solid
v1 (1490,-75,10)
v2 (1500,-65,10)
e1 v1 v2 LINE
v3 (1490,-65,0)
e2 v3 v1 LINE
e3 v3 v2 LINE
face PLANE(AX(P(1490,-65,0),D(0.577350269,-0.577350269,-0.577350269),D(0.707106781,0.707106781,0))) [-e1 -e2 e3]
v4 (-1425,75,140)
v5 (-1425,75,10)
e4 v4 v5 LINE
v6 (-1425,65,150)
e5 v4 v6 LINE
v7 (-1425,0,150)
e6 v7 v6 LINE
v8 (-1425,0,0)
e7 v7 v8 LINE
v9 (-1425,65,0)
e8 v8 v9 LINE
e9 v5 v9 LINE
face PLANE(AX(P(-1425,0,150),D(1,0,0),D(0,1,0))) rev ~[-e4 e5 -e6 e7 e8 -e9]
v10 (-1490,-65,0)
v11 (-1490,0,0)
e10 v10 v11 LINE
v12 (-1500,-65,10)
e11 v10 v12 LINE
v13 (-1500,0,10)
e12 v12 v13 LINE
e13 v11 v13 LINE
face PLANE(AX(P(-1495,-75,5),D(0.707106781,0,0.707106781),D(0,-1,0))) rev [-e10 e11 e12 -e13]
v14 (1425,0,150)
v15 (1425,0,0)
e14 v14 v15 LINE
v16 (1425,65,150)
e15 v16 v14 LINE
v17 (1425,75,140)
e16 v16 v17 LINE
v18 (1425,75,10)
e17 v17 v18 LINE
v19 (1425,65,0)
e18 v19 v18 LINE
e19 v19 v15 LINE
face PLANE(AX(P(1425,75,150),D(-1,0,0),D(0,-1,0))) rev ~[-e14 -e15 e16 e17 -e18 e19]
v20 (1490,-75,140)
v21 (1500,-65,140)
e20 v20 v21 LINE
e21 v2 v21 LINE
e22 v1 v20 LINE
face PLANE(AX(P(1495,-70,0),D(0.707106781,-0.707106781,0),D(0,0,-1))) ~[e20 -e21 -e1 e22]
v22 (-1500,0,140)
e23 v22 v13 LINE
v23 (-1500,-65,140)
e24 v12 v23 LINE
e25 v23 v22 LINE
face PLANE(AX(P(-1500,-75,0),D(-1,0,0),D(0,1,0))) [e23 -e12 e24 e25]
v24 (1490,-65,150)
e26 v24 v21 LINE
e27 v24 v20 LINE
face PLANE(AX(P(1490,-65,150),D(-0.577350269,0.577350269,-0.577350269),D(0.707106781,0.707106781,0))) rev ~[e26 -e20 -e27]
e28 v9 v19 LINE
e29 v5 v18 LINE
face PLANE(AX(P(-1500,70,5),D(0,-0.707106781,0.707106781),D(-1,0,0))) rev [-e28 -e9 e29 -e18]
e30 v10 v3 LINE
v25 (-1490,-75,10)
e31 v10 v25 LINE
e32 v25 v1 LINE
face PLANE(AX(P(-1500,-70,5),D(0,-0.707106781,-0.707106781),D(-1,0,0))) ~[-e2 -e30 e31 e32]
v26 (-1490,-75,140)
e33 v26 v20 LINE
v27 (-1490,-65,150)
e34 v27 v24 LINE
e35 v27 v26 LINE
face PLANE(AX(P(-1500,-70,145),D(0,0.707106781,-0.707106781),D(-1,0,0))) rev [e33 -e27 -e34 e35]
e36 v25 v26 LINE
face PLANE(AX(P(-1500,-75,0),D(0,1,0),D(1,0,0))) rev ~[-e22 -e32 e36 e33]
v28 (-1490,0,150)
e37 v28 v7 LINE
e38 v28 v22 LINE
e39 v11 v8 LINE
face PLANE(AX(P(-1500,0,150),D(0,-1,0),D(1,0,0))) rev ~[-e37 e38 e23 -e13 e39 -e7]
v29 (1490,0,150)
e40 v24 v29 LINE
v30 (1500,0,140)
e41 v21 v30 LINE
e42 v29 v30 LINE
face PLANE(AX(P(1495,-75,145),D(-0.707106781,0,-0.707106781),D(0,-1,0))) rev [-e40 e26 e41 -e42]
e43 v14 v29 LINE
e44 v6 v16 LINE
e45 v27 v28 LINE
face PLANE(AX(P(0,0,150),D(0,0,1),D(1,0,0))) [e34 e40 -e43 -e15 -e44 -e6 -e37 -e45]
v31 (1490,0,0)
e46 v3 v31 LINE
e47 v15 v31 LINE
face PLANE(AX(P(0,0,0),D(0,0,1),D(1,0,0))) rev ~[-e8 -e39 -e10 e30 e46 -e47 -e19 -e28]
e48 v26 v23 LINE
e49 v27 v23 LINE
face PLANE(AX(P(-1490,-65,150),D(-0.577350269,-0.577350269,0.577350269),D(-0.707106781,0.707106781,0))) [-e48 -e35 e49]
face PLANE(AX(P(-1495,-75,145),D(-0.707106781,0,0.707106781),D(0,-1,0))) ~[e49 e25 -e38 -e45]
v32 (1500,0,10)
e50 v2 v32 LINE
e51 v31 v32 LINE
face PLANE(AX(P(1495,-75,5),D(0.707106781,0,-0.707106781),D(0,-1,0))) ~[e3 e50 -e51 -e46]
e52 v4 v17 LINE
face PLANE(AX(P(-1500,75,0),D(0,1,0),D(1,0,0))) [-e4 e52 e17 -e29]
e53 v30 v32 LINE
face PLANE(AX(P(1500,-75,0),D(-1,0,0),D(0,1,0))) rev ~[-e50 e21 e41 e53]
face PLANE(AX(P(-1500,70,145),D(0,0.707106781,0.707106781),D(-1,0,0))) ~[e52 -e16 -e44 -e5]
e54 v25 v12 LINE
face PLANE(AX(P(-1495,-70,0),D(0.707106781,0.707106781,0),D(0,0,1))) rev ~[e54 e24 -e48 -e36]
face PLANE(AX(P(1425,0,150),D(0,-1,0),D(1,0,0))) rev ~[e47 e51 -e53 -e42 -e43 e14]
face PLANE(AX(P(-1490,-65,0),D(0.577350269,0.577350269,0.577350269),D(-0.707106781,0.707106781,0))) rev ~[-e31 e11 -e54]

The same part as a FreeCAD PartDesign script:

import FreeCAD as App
import Part
import Sketcher
from FreeCAD import Vector

doc = App.newDocument("Part")
body = doc.addObject("PartDesign::Body", "Body")

sketch1 = body.newObject("Sketcher::SketchObject", "Sketch")
sketch1.AttachmentSupport = (doc.getObject("XY_Plane"), [""])
sketch1.MapMode = "FlatFace"
sketch1.addGeometry(Part.LineSegment(Vector(-1500, 75, 0), Vector(-1500, -75, 0)), False)
sketch1.addGeometry(Part.LineSegment(Vector(-1500, -75, 0), Vector(1500, -75, 0)), False)
sketch1.addGeometry(Part.LineSegment(Vector(1500, -75, 0), Vector(1500, 75, 0)), False)
sketch1.addGeometry(Part.LineSegment(Vector(1500, 75, 0), Vector(-1500, 75, 0)), False)
sketch1.addConstraint(Sketcher.Constraint("Coincident", 0, 2, 1, 1))
sketch1.addConstraint(Sketcher.Constraint("Coincident", 1, 2, 2, 1))
sketch1.addConstraint(Sketcher.Constraint("Coincident", 2, 2, 3, 1))
sketch1.addConstraint(Sketcher.Constraint("Coincident", 3, 2, 0, 1))
sketch1.addConstraint(Sketcher.Constraint("Vertical", 0))
sketch1.addConstraint(Sketcher.Constraint("Horizontal", 1))
sketch1.addConstraint(Sketcher.Constraint("Vertical", 2))
sketch1.addConstraint(Sketcher.Constraint("Horizontal", 3))
sketch1.addConstraint(Sketcher.Constraint("Symmetric", 0, 2, 2, 2, -1, 1))
sketch1.addConstraint(Sketcher.Constraint("DistanceX", 1, 1, 1, 2, 3000.0))
sketch1.addConstraint(Sketcher.Constraint("DistanceY", 0, 2, 0, 1, 150.0))
pad1 = body.newObject("PartDesign::Pad", "Pad")
pad1.Profile = sketch1
pad1.Length = 150
doc.recompute()

chamfer = body.newObject("PartDesign::Chamfer", "Chamfer")
chamfer.Base = (pad1, ["Edge1"])
chamfer.UseAllEdges = True
chamfer.Size = 10

sketch2 = body.newObject("Sketcher::SketchObject", "Sketch001")
sketch2.AttachmentSupport = (doc.getObject("XY_Plane"), [""])
sketch2.MapMode = "FlatFace"
sketch2.AttachmentOffset = App.Placement(Vector(0, 0, 150), App.Rotation())
sketch2.addGeometry(Part.LineSegment(Vector(-1425, 0, 0), Vector(-1425, 75, 0)), False)
sketch2.addGeometry(Part.LineSegment(Vector(-1425, 75, 0), Vector(-1500, 75, 0)), False)
sketch2.addGeometry(Part.LineSegment(Vector(-1500, 75, 0), Vector(-1500, 0, 0)), False)
sketch2.addGeometry(Part.LineSegment(Vector(-1500, 0, 0), Vector(-1425, 0, 0)), False)
sketch2.addConstraint(Sketcher.Constraint("Coincident", 0, 2, 1, 1))
sketch2.addConstraint(Sketcher.Constraint("Coincident", 1, 2, 2, 1))
sketch2.addConstraint(Sketcher.Constraint("Coincident", 2, 2, 3, 1))
sketch2.addConstraint(Sketcher.Constraint("Coincident", 3, 2, 0, 1))
sketch2.addConstraint(Sketcher.Constraint("Vertical", 0))
sketch2.addConstraint(Sketcher.Constraint("Horizontal", 1))
sketch2.addConstraint(Sketcher.Constraint("Vertical", 2))
sketch2.addConstraint(Sketcher.Constraint("Horizontal", 3))
sketch2.addConstraint(Sketcher.Constraint("PointOnObject", 2, 2, -1))
sketch2.addConstraint(Sketcher.Constraint("Equal", 3, 0))
sketch2.addConstraint(Sketcher.Constraint("DistanceX", 1, 2, 1, 1, 75.0))
sketch2.addConstraint(Sketcher.Constraint("DistanceX", 0, 2, -1, 1, 1425.0))
pocket1 = body.newObject("PartDesign::Pocket", "Pocket")
pocket1.Profile = sketch2
pocket1.Type = "ThroughAll"

sketch3 = body.newObject("Sketcher::SketchObject", "Sketch002")
sketch3.AttachmentSupport = (doc.getObject("XY_Plane"), [""])
sketch3.MapMode = "FlatFace"
sketch3.AttachmentOffset = App.Placement(Vector(0, 0, 150), App.Rotation())
sketch3.addGeometry(Part.LineSegment(Vector(1500, 75, 0), Vector(1425, 75, 0)), False)
sketch3.addGeometry(Part.LineSegment(Vector(1425, 75, 0), Vector(1425, 0, 0)), False)
sketch3.addGeometry(Part.LineSegment(Vector(1425, 0, 0), Vector(1500, 0, 0)), False)
sketch3.addGeometry(Part.LineSegment(Vector(1500, 0, 0), Vector(1500, 75, 0)), False)
sketch3.addConstraint(Sketcher.Constraint("Coincident", 0, 2, 1, 1))
sketch3.addConstraint(Sketcher.Constraint("Coincident", 1, 2, 2, 1))
sketch3.addConstraint(Sketcher.Constraint("Coincident", 2, 2, 3, 1))
sketch3.addConstraint(Sketcher.Constraint("Coincident", 3, 2, 0, 1))
sketch3.addConstraint(Sketcher.Constraint("Horizontal", 0))
sketch3.addConstraint(Sketcher.Constraint("Vertical", 1))
sketch3.addConstraint(Sketcher.Constraint("Horizontal", 2))
sketch3.addConstraint(Sketcher.Constraint("Vertical", 3))
sketch3.addConstraint(Sketcher.Constraint("PointOnObject", 1, 2, -1))
sketch3.addConstraint(Sketcher.Constraint("Equal", 2, 1))
sketch3.addConstraint(Sketcher.Constraint("DistanceX", 0, 2, 0, 1, 75.0))
sketch3.addConstraint(Sketcher.Constraint("DistanceX", -1, 1, 0, 2, 1425.0))
pocket2 = body.newObject("PartDesign::Pocket", "Pocket001")
pocket2.Profile = sketch3
pocket2.Type = "ThroughAll"

doc.recompute()
